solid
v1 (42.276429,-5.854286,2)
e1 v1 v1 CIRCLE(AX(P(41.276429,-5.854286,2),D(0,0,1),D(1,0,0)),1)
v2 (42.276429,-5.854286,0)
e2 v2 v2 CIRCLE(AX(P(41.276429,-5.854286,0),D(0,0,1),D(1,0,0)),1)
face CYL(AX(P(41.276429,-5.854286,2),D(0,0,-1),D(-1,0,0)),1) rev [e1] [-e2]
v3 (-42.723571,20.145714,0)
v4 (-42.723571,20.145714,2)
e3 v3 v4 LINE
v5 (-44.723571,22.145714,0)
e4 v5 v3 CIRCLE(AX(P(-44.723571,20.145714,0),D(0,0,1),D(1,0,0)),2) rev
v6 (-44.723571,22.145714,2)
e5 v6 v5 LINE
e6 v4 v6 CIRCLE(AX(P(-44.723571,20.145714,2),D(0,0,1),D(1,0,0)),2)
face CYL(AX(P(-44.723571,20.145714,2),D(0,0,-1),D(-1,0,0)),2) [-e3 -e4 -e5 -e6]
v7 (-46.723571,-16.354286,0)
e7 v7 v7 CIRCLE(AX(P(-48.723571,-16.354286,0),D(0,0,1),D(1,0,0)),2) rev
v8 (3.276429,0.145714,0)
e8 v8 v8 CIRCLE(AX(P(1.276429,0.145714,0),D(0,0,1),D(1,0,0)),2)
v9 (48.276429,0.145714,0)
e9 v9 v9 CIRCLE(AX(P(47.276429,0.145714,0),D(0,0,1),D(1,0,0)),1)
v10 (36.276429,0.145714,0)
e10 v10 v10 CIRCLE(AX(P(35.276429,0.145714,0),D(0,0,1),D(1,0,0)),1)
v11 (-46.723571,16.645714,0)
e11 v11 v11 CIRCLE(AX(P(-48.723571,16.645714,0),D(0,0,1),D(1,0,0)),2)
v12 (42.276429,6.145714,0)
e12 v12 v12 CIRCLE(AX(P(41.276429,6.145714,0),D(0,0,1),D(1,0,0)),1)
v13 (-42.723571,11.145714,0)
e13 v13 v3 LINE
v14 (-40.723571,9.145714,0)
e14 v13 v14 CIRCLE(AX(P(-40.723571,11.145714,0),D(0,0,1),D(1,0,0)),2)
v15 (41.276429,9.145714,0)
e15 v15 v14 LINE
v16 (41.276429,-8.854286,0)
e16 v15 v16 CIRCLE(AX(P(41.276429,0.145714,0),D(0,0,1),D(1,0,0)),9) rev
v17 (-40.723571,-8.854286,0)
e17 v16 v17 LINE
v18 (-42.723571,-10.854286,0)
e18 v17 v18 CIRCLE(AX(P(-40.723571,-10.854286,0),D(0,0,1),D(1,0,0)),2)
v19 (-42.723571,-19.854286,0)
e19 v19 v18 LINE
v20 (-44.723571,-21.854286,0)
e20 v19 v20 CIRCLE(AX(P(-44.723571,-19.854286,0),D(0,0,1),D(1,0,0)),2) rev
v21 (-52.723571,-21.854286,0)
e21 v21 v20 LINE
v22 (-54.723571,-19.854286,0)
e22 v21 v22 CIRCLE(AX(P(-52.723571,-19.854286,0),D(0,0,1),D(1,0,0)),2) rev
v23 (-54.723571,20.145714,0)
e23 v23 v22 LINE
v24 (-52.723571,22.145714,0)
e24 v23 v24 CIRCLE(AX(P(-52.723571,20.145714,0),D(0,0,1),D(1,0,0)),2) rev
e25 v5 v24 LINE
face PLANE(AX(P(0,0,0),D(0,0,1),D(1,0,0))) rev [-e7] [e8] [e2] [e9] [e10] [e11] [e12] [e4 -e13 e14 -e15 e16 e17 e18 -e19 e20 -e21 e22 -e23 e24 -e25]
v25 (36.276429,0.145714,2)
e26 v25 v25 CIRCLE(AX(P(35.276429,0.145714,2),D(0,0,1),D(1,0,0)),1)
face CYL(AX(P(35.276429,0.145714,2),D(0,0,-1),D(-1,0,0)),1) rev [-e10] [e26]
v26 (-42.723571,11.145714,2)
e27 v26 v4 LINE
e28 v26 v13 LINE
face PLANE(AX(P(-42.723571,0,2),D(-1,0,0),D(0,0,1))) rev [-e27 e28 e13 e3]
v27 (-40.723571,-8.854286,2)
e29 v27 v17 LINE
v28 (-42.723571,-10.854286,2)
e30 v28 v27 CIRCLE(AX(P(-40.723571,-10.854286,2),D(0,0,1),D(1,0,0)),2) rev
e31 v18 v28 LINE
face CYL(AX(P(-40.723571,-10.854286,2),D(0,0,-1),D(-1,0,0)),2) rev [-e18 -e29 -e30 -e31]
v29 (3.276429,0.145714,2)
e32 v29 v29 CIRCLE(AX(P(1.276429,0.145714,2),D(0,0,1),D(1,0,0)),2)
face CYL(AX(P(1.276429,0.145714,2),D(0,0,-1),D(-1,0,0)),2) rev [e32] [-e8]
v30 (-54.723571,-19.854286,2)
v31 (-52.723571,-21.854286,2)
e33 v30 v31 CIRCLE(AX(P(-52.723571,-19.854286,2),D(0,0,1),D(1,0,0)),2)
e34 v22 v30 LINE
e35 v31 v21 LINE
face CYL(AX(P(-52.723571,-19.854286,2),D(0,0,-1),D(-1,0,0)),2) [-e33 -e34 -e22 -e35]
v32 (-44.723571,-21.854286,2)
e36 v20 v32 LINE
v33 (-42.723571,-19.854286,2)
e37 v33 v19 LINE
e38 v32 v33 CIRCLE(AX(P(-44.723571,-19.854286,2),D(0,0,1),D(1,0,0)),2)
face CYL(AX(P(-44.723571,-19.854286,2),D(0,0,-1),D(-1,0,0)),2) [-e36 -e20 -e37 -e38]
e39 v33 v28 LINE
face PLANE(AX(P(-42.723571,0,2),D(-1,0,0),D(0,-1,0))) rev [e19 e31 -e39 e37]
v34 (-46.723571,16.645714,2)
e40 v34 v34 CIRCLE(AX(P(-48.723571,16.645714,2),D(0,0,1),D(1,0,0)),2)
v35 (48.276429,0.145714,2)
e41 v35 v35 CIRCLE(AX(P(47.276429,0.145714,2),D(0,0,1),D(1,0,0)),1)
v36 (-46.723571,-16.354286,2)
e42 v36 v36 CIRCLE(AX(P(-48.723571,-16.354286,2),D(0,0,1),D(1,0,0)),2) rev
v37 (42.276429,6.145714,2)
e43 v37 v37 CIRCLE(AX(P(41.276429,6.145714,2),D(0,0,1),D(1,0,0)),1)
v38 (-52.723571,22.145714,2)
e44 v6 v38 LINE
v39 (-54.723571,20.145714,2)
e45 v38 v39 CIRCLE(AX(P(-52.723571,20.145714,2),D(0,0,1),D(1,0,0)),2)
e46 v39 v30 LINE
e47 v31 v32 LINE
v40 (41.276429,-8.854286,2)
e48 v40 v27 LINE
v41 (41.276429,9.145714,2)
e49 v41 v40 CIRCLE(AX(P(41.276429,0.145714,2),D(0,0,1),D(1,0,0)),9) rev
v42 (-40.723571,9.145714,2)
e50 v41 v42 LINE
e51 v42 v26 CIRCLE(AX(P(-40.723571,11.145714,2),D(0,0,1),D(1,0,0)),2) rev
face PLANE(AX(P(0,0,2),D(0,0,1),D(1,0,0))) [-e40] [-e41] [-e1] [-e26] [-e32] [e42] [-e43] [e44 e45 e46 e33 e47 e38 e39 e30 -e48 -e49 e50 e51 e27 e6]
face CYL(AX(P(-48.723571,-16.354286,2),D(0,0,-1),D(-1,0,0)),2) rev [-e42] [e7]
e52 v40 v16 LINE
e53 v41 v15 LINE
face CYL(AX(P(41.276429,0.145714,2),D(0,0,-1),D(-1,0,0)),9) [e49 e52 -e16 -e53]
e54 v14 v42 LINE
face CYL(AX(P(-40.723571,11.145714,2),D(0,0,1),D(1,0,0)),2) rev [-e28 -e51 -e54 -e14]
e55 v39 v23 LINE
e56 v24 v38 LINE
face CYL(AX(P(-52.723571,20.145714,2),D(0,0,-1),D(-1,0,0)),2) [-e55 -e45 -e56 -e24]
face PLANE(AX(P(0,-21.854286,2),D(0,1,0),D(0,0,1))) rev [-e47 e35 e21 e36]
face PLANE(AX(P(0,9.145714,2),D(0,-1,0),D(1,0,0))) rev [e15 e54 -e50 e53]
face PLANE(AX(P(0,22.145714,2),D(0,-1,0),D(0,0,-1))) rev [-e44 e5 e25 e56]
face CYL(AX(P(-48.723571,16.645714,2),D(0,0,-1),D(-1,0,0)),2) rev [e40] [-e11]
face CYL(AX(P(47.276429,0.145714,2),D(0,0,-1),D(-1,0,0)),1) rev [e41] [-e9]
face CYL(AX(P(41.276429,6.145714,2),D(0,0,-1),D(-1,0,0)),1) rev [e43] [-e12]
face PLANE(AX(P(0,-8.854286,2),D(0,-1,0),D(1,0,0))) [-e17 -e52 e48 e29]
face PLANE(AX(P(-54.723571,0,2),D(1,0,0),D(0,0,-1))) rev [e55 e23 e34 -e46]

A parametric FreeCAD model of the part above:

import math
import FreeCAD as App
import Part
import Sketcher

V = App.Vector
Q = App.Units.Quantity


def edges_at(feature, points):
    """Names of the edges that pass closest to the given points."""
    edges = feature.Shape.Edges
    near = lambda p: min(range(len(edges)), key=lambda i: edges[i].distToShape(Part.Vertex(*p))[0])
    return sorted({f"Edge{near(p) + 1}" for p in points})

doc = App.newDocument("Part")
body = doc.addObject("PartDesign::Body", "Body")

# Sketch on XY plane
sketch1 = body.newObject("Sketcher::SketchObject", "Sketch")
sketch1.AttachmentSupport = (doc.getObject("XY_Plane"), [""])
sketch1.MapMode = "FlatFace"
sketch1.addGeometry(Part.LineSegment(V(-42.7, -8.9, 0), V(41.3, -8.9, 0)), False)
sketch1.addGeometry(Part.ArcOfCircle(Part.Circle(V(41.3, 0.1, 0), V(0, 0, 1), 9), math.radians(-90), math.radians(90)), False)
sketch1.addGeometry(Part.LineSegment(V(41.3, 9.1, 0), V(-42.7, 9.1, 0)), False)
sketch1.addGeometry(Part.LineSegment(V(-42.7, 9.1, 0), V(-42.7, 22.1, 0)), False)
sketch1.addGeometry(Part.LineSegment(V(-42.7, 22.1, 0), V(-54.7, 22.1, 0)), False)
sketch1.addGeometry(Part.LineSegment(V(-54.7, 22.1, 0), V(-54.7, -21.9, 0)), False)
sketch1.addGeometry(Part.LineSegment(V(-54.7, -21.9, 0), V(-42.7, -21.9, 0)), False)
sketch1.addGeometry(Part.LineSegment(V(-42.7, -21.9, 0), V(-42.7, -8.9, 0)), False)
sketch1.addGeometry(Part.Circle(V(41.3, -5.9, 0), V(0, 0, 1), 1), False)
sketch1.addGeometry(Part.Circle(V(-48.7, -16.4, 0), V(0, 0, 1), 2), False)
sketch1.addGeometry(Part.Circle(V(47.3, 0.1, 0), V(0, 0, 1), 1), False)
sketch1.addGeometry(Part.Circle(V(35.3, 0.1, 0), V(0, 0, 1), 1), False)
sketch1.addGeometry(Part.Circle(V(41.3, 6.1, 0), V(0, 0, 1), 1), False)
sketch1.addGeometry(Part.Circle(V(1.3, 0.1, 0), V(0, 0, 1), 2), False)
sketch1.addGeometry(Part.Circle(V(-48.7, 16.6, 0), V(0, 0, 1), 2), False)
sketch1.addConstraint(Sketcher.Constraint("Tangent", 0, 2, 1, 1))
sketch1.addConstraint(Sketcher.Constraint("Tangent", 1, 2, 2, 1))
sketch1.addConstraint(Sketcher.Constraint("Coincident", 2, 2, 3, 1))
sketch1.addConstraint(Sketcher.Constraint("Coincident", 3, 2, 4, 1))
sketch1.addConstraint(Sketcher.Constraint("Coincident", 4, 2, 5, 1))
sketch1.addConstraint(Sketcher.Constraint("Coincident", 5, 2, 6, 1))
sketch1.addConstraint(Sketcher.Constraint("Coincident", 6, 2, 7, 1))
sketch1.addConstraint(Sketcher.Constraint("Coincident", 7, 2, 0, 1))
sketch1.addConstraint(Sketcher.Constraint("Horizontal", 0))
sketch1.addConstraint(Sketcher.Constraint("Horizontal", 2))
sketch1.addConstraint(Sketcher.Constraint("Vertical", 3))
sketch1.addConstraint(Sketcher.Constraint("Horizontal", 4))
sketch1.addConstraint(Sketcher.Constraint("Vertical", 5))
sketch1.addConstraint(Sketcher.Constraint("Horizontal", 6))
sketch1.addConstraint(Sketcher.Constraint("Vertical", 7))
sketch1.addConstraint(Sketcher.Constraint("Equal", 8, 10))
sketch1.addConstraint(Sketcher.Constraint("Equal", 10, 11))
sketch1.addConstraint(Sketcher.Constraint("Equal", 11, 12))
sketch1.addConstraint(Sketcher.Constraint("Equal", 9, 13))
sketch1.addConstraint(Sketcher.Constraint("Equal", 13, 14))
sketch1.addConstraint(Sketcher.Constraint("Horizontal", 1, 3, 10, 3))
sketch1.addConstraint(Sketcher.Constraint("Horizontal", 10, 3, 11, 3))
sketch1.addConstraint(Sketcher.Constraint("Horizontal", 11, 3, 13, 3))
sketch1.addConstraint(Sketcher.Constraint("Vertical", 1, 3, 8, 3))
sketch1.addConstraint(Sketcher.Constraint("Vertical", 8, 3, 12, 3))
sketch1.addConstraint(Sketcher.Constraint("Vertical", 9, 3, 14, 3))
sketch1.addConstraint(Sketcher.Constraint("Vertical", 3, 2, 6, 2))
sketch1.addConstraint(Sketcher.Constraint("Equal", 3, 7))
sketch1.addConstraint(Sketcher.Constraint("Diameter", 8, Q("2 mm")))
sketch1.addConstraint(Sketcher.Constraint("Diameter", 9, Q("4 mm")))
sketch1.addConstraint(Sketcher.Constraint("Radius", 1, Q("9 mm")))
sketch1.addConstraint(Sketcher.Constraint("DistanceX", 0, 1, 0, 2, Q("84 mm")))
sketch1.addConstraint(Sketcher.Constraint("DistanceX", 4, 2, 4, 1, Q("12 mm")))
sketch1.addConstraint(Sketcher.Constraint("DistanceY", 3, 1, 3, 2, Q("13 mm")))
sketch1.addConstraint(Sketcher.Constraint("DistanceY", 8, 3, 1, 3, Q("6 mm")))
sketch1.addConstraint(Sketcher.Constraint("DistanceX", 9, 3, 8, 3, Q("90 mm")))
sketch1.addConstraint(Sketcher.Constraint("DistanceX", 1, 3, 10, 3, Q("6 mm")))
sketch1.addConstraint(Sketcher.Constraint("DistanceX", 11, 3, 1, 3, Q("6 mm")))
sketch1.addConstraint(Sketcher.Constraint("DistanceY", 1, 3, 12, 3, Q("6 mm")))
sketch1.addConstraint(Sketcher.Constraint("DistanceX", 13, 3, 11, 3, Q("34 mm")))
sketch1.addConstraint(Sketcher.Constraint("DistanceY", 9, 3, 14, 3, Q("33 mm")))
sketch1.addConstraint(Sketcher.Constraint("DistanceY", 9, 3, 8, 3, Q("10.5 mm")))
sketch1.addConstraint(Sketcher.Constraint("DistanceX", -1, 1, 1, 3, Q("41.276429 mm")))
sketch1.addConstraint(Sketcher.Constraint("DistanceY", -1, 1, 1, 3, Q("0.145714 mm")))
pad1 = body.newObject("PartDesign::Pad", "Pad")
pad1.Profile = sketch1
pad1.Length = 2
doc.recompute()

fillet = body.newObject("PartDesign::Fillet", "Fillet")
fillet.Base = (pad1, edges_at(pad1, [
    (-42.724, -8.854, 1),
    (-42.724, -21.854, 1),
    (-54.724, -21.854, 1),
    (-54.724, 22.146, 1),
    (-42.724, 22.146, 1),
    (-42.724, 9.146, 1),
]))
fillet.Radius = 2

doc.recompute()
